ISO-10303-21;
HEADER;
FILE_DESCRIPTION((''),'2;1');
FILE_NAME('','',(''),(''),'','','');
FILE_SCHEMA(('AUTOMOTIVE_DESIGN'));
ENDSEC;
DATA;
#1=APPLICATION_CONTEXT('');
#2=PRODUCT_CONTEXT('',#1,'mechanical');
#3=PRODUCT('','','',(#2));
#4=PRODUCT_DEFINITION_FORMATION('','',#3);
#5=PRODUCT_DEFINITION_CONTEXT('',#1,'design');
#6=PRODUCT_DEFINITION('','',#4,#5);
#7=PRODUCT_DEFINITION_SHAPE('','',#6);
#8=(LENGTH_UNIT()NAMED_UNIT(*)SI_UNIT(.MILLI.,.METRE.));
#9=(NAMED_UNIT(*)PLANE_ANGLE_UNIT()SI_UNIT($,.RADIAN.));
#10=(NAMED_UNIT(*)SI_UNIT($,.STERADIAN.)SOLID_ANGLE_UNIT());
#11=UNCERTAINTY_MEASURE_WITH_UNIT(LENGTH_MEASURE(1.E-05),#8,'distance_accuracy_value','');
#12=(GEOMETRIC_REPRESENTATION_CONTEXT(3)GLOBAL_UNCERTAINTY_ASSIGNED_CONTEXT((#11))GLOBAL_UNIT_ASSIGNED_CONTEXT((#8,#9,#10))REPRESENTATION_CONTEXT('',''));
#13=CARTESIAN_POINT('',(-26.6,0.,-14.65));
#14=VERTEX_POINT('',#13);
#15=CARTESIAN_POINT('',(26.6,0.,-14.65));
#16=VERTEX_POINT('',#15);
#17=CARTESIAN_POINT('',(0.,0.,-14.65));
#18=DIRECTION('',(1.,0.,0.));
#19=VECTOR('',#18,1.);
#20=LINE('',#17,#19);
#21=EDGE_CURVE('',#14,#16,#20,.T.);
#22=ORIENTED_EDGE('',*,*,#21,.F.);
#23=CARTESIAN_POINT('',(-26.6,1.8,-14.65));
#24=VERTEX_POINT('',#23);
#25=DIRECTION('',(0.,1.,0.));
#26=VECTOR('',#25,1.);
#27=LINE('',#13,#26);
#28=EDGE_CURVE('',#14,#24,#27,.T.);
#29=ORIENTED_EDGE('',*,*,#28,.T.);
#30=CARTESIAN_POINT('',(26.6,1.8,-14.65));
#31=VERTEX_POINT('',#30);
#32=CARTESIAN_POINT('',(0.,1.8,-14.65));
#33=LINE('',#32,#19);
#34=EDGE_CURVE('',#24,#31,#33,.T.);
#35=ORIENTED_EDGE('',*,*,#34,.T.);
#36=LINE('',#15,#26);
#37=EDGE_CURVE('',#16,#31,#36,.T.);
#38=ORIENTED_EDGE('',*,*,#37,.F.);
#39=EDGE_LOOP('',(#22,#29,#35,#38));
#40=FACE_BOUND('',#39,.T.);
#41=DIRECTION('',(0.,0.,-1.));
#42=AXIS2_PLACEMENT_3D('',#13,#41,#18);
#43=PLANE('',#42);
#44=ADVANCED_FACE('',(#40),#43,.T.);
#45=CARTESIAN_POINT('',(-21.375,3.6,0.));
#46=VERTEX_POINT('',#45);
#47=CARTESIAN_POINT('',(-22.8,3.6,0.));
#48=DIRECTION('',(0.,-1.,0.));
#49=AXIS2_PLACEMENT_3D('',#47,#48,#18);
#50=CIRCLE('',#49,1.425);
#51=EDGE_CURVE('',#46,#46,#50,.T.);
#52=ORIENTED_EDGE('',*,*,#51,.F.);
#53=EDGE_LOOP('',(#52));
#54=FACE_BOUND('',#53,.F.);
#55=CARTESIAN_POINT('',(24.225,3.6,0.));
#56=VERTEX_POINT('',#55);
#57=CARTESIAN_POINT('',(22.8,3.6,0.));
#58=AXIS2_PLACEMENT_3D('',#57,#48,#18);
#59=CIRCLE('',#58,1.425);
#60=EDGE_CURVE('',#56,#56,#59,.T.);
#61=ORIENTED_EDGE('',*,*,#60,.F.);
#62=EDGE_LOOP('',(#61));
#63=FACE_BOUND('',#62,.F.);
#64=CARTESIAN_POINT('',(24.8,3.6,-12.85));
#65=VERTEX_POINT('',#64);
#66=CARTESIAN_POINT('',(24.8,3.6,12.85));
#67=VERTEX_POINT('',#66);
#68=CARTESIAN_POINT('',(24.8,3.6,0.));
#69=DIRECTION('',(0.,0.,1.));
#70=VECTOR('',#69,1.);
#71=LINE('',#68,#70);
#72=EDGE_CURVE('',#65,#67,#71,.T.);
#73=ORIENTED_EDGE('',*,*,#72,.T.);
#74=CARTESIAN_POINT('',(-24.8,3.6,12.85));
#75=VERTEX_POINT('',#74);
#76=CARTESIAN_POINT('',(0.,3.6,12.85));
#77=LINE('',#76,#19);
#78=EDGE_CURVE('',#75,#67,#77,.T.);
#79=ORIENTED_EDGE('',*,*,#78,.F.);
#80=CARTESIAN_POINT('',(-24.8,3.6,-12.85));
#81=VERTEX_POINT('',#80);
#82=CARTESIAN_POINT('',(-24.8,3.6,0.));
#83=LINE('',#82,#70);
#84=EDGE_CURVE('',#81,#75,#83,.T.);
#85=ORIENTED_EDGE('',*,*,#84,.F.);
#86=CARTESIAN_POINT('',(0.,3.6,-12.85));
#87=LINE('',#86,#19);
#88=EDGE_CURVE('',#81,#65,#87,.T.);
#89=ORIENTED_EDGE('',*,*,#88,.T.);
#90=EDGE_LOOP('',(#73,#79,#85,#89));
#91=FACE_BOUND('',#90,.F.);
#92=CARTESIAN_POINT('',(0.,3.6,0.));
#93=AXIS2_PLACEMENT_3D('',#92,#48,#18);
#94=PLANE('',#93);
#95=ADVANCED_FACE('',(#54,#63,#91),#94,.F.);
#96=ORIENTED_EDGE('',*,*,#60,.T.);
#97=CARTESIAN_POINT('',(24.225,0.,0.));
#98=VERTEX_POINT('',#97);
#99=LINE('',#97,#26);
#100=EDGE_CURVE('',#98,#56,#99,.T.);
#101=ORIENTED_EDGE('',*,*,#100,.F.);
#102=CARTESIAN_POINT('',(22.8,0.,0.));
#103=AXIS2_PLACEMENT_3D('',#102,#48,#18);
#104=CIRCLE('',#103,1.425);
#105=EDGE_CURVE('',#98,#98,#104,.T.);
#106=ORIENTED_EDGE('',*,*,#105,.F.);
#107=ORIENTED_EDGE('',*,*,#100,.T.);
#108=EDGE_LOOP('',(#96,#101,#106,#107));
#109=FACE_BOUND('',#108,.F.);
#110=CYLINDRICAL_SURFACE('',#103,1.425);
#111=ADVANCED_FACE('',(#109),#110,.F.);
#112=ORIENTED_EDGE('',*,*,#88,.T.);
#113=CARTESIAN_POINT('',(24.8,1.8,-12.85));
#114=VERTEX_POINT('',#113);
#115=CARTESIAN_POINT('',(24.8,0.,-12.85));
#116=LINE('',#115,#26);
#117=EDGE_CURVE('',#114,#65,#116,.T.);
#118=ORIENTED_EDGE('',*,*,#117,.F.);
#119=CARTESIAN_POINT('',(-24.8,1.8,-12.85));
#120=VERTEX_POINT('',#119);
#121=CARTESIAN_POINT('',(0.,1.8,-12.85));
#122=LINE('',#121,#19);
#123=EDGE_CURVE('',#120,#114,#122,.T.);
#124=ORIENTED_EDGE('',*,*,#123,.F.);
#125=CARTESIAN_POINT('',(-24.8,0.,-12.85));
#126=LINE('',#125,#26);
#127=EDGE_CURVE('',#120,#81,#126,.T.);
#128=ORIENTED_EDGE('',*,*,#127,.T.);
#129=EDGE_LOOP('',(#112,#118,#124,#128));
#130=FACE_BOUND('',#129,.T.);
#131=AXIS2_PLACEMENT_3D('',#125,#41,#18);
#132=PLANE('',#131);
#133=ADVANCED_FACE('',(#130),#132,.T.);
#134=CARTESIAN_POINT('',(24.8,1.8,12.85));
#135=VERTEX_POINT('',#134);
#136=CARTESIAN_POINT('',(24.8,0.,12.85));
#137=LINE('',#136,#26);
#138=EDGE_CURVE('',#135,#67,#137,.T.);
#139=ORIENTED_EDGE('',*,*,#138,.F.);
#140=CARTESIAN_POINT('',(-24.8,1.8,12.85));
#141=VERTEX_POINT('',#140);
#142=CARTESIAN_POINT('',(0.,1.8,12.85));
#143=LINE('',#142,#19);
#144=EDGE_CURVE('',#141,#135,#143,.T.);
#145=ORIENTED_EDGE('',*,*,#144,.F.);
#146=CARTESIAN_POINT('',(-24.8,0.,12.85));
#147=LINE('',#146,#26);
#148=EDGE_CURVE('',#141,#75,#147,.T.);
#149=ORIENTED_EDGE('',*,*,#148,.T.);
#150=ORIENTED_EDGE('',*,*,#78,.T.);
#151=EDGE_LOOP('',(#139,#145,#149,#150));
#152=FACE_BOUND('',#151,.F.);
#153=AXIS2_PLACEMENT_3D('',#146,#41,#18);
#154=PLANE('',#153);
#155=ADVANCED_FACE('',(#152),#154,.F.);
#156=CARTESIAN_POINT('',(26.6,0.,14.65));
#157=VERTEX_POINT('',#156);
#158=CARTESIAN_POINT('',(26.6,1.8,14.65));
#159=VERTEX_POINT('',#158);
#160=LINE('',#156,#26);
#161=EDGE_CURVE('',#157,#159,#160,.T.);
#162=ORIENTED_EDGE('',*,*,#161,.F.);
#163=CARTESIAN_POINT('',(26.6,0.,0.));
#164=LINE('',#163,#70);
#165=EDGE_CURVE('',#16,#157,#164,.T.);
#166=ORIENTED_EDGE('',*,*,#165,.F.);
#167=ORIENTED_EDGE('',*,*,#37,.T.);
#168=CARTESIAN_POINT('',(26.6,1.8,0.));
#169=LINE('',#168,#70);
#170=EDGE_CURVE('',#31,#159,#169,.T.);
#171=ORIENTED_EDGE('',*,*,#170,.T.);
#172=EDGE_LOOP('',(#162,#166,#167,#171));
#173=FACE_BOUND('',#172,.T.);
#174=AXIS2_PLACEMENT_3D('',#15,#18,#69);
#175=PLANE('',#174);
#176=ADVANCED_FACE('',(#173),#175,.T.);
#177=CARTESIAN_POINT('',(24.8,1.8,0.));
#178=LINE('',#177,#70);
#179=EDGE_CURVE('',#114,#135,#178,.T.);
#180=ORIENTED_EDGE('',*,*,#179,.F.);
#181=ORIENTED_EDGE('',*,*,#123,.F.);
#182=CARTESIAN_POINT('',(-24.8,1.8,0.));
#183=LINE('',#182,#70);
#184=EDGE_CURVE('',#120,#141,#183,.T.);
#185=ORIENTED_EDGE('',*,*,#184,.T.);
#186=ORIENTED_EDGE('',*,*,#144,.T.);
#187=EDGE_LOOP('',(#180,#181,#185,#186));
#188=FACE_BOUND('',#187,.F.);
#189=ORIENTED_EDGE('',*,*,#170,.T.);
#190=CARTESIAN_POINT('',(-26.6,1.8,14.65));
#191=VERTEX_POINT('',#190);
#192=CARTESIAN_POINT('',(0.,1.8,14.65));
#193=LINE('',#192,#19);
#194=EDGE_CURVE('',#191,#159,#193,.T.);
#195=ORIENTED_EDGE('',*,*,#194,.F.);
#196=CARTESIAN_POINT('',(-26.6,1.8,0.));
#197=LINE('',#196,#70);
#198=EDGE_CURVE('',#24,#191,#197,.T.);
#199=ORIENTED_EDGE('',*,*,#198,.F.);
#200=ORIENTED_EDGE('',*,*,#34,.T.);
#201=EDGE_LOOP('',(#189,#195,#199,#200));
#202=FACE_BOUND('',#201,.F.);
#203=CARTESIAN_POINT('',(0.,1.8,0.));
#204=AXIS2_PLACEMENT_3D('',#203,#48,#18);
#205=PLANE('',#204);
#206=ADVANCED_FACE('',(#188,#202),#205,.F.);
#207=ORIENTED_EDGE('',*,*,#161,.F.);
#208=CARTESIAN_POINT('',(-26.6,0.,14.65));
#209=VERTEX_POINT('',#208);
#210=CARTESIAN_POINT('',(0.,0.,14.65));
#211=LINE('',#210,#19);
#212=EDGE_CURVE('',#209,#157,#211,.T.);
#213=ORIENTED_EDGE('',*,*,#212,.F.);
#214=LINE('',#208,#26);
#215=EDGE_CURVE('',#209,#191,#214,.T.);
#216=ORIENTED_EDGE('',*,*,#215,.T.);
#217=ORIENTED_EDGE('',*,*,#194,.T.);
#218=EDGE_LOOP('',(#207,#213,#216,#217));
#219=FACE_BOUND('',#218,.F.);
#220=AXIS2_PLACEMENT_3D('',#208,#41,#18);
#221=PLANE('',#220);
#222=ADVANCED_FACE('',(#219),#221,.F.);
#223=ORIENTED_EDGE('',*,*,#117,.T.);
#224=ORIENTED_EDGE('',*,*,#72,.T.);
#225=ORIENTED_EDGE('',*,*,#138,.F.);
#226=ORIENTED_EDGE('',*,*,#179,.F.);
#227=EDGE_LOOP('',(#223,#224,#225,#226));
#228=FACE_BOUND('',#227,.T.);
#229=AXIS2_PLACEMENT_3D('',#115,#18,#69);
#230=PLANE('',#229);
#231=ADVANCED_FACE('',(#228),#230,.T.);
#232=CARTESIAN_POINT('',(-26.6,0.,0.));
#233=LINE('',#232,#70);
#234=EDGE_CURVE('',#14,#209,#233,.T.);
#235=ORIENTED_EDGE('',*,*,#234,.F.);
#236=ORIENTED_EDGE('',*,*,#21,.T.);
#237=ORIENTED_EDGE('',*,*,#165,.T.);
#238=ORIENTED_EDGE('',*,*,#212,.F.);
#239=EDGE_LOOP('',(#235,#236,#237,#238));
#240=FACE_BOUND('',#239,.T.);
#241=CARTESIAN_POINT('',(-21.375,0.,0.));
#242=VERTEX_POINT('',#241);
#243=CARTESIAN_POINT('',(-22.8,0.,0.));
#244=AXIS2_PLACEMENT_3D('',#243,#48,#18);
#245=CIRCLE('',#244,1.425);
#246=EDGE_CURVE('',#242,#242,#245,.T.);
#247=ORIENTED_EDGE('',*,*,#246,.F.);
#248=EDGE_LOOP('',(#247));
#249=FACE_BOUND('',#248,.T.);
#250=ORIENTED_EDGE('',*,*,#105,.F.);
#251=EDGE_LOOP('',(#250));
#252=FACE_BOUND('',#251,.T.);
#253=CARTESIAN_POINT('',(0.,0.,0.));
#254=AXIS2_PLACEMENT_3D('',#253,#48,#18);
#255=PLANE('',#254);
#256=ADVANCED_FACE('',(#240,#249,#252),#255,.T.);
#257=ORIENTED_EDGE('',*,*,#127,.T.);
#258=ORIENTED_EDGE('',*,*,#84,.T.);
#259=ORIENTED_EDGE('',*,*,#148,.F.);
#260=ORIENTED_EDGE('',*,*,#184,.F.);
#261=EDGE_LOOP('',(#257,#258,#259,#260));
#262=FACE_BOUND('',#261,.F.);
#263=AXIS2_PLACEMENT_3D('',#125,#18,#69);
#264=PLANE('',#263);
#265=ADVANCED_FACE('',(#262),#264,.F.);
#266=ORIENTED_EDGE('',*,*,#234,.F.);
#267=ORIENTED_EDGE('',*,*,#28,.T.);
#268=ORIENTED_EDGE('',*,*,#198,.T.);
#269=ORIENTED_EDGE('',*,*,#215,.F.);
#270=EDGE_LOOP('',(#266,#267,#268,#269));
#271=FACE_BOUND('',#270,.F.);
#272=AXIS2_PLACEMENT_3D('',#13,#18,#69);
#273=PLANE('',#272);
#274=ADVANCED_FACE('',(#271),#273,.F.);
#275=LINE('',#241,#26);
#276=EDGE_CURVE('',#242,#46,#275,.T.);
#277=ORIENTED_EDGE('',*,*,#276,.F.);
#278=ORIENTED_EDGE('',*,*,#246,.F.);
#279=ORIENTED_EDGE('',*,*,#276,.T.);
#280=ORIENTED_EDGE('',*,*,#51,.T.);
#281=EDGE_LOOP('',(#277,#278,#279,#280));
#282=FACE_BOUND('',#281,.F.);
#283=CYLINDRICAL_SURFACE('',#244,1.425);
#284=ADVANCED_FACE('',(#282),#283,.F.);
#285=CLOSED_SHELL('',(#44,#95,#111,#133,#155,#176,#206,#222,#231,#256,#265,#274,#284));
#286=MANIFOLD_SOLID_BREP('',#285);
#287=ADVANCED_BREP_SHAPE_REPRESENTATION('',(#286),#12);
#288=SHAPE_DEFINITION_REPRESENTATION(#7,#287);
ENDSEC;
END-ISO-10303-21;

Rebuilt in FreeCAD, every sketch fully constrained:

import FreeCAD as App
import Part
import Sketcher

V = App.Vector
Q = App.Units.Quantity


def add_polygon(sketch, points):
    """Adds a closed chain of lines whose ends are joined by coincident constraints."""
    first, n = sketch.GeometryCount, len(points)
    for a, b in zip(points, points[1:] + points[:1]):
        sketch.addGeometry(Part.LineSegment(App.Vector(*a, 0), App.Vector(*b, 0)), False)
    for i in range(n):
        sketch.addConstraint(Sketcher.Constraint("Coincident", first + i, 2, first + (i + 1) % n, 1))

doc = App.newDocument("Part")
body = doc.addObject("PartDesign::Body", "Body")

# Sketch on XZ plane
sketch1 = doc.addObject("Sketcher::SketchObject", "Sketch")
body.addObject(sketch1)
sketch1.AttachmentSupport = (doc.XZ_Plane, [""])
sketch1.MapMode = "FlatFace"
add_polygon(sketch1, [(-24.8, 12.8), (-24.8, -12.8), (24.8, -12.8), (24.8, 12.8)])  # lines 0-3
sketch1.addGeometry(Part.Circle(V(-22.8, 0, 0), V(0, 0, 1), 1.4), False)  # 4
sketch1.addGeometry(Part.Circle(V(22.8, 0, 0), V(0, 0, 1), 1.4), False)  # 5
sketch1.addConstraint([
    Sketcher.Constraint("Vertical", 0),
    Sketcher.Constraint("Horizontal", 1),
    Sketcher.Constraint("Vertical", 2),
    Sketcher.Constraint("Horizontal", 3),
    Sketcher.Constraint("Equal", 4, 5),
    Sketcher.Constraint("Symmetric", 4, 3, 5, 3, -1, 1),
    Sketcher.Constraint("Symmetric", 0, 2, 2, 2, -1, 1),
    Sketcher.Constraint("PointOnObject", 4, 3, -1),
    Sketcher.Constraint("Diameter", 4, Q("2.85 mm")),
    Sketcher.Constraint("DistanceX", 1, 1, 1, 2, Q("49.6 mm")),
    Sketcher.Constraint("DistanceY", 0, 2, 0, 1, Q("25.7 mm")),
    Sketcher.Constraint("DistanceX", 0, 2, 4, 3, Q("2 mm")),
])
pad1 = doc.addObject("PartDesign::Pad", "Pad")
body.addObject(pad1)
pad1.Profile = sketch1
pad1.Length = 3.6
pad1.Reversed = True

# Sketch on XZ plane
sketch2 = doc.addObject("Sketcher::SketchObject", "Sketch001")
body.addObject(sketch2)
sketch2.AttachmentSupport = (doc.XZ_Plane, [""])
sketch2.MapMode = "FlatFace"
add_polygon(sketch2, [(-27, 15), (-27, -15), (27, -15), (27, 15)])  # lines 0-3
add_polygon(sketch2, [(25, -13), (-25, -13), (-25, 13), (25, 13)])  # lines 4-7
sketch2.addConstraint([
    Sketcher.Constraint("Vertical", 0),
    Sketcher.Constraint("Horizontal", 1),
    Sketcher.Constraint("Vertical", 2),
    Sketcher.Constraint("Horizontal", 3),
    Sketcher.Constraint("Horizontal", 4),
    Sketcher.Constraint("Vertical", 5),
    Sketcher.Constraint("Horizontal", 6),
    Sketcher.Constraint("Vertical", 7),
    Sketcher.Constraint("Symmetric", 0, 2, 2, 2, -1, 1),
    Sketcher.Constraint("Symmetric", 4, 2, 6, 2, -1, 1),
    Sketcher.Constraint("DistanceX", 1, 1, 1, 2, Q("53.2 mm")),
    Sketcher.Constraint("DistanceX", 4, 2, 4, 1, Q("49.6 mm")),
    Sketcher.Constraint("DistanceY", 0, 2, 0, 1, Q("29.3 mm")),
    Sketcher.Constraint("DistanceY", 5, 1, 5, 2, Q("25.7 mm")),
])
pad2 = doc.addObject("PartDesign::Pad", "Pad001")
body.addObject(pad2)
pad2.Profile = sketch2
pad2.Length = 1.8
pad2.Reversed = True

doc.recompute()
